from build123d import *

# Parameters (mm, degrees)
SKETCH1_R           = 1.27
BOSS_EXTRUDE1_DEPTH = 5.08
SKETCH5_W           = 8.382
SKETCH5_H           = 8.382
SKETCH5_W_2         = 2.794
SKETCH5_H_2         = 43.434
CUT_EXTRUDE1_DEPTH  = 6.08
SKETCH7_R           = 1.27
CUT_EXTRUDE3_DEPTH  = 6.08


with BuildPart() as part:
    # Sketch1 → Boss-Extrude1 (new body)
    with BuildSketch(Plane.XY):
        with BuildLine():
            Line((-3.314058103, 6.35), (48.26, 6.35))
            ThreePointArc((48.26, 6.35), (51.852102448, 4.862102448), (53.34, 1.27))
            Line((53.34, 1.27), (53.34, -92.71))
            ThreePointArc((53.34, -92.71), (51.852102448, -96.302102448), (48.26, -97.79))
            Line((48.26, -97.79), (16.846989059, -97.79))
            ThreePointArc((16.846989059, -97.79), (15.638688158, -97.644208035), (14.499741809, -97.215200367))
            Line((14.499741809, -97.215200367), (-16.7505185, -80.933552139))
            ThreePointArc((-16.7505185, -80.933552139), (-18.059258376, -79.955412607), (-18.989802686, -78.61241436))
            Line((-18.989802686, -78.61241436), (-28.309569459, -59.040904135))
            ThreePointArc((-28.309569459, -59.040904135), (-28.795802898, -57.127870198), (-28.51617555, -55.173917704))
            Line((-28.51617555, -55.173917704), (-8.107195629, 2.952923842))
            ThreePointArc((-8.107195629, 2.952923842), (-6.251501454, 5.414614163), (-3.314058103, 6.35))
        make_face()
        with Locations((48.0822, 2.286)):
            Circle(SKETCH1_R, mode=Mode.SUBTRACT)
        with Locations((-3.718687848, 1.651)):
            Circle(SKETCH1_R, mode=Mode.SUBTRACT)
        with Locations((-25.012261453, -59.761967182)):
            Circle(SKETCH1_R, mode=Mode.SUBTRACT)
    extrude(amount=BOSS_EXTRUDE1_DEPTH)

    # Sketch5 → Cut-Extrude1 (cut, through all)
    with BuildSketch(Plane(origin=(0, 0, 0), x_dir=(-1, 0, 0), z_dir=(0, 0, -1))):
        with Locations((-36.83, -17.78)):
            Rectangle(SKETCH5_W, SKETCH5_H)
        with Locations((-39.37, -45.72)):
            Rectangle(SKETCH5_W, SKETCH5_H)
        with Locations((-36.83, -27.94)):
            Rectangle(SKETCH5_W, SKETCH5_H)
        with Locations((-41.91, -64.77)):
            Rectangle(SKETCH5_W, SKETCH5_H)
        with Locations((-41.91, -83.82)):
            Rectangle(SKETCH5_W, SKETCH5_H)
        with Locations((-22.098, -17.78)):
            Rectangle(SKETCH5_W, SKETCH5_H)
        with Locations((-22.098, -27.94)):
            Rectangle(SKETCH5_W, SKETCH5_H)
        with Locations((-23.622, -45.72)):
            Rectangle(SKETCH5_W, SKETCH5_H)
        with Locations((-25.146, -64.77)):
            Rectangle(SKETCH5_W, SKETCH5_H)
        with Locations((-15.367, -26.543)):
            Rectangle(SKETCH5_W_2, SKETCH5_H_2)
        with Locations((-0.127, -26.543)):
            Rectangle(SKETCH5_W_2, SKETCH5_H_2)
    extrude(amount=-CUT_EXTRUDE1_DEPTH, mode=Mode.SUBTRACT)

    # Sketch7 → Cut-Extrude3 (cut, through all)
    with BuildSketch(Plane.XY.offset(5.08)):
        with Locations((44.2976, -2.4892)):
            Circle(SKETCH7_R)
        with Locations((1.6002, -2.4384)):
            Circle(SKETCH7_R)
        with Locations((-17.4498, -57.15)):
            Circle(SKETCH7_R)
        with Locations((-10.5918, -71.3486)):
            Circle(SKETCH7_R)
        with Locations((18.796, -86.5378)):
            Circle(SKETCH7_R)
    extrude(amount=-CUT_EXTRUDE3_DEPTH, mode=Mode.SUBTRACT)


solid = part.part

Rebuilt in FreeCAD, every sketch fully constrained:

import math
import FreeCAD as App
import Part
import Sketcher

V = App.Vector
Q = App.Units.Quantity

doc = App.newDocument("Part")
body = doc.addObject("PartDesign::Body", "Body")

sketch1 = body.newObject("Sketcher::SketchObject", "Sketch")
sketch1.AttachmentSupport = (doc.getObject("XY_Plane"), [""])
sketch1.MapMode = "FlatFace"
sketch1.addGeometry([
    Part.LineSegment(V(48.3, 6.3, 0), V(-3.3, 6.3, 0)),
    Part.ArcOfCircle(Part.Circle(V(-3.3, 1.3, 0), V(0, 0, 1), 5.1), math.radians(90), math.radians(161)),
    Part.LineSegment(V(-8.1, 3, 0), V(-28.5, -55.2, 0)),
    Part.ArcOfCircle(Part.Circle(V(-23.7, -56.9, 0), V(0, 0, 1), 5.1), math.radians(161), math.radians(205)),
    Part.LineSegment(V(-28.3, -59, 0), V(-19, -78.6, 0)),
    Part.ArcOfCircle(Part.Circle(V(-14.4, -76.4, 0), V(0, 0, 1), 5.1), math.radians(-155), math.radians(-118)),
    Part.LineSegment(V(-16.8, -80.9, 0), V(14.5, -97.2, 0)),
    Part.ArcOfCircle(Part.Circle(V(16.8, -92.7, 0), V(0, 0, 1), 5.1), math.radians(-118), math.radians(-90)),
    Part.LineSegment(V(16.8, -97.8, 0), V(48.3, -97.8, 0)),
    Part.ArcOfCircle(Part.Circle(V(48.3, -92.7, 0), V(0, 0, 1), 5.1), math.radians(-90), math.radians(0)),
    Part.LineSegment(V(53.3, -92.7, 0), V(53.3, 1.3, 0)),
    Part.ArcOfCircle(Part.Circle(V(48.3, 1.3, 0), V(0, 0, 1), 5.1), math.radians(0), math.radians(90)),
    Part.Circle(V(-25, -59.8, 0), V(0, 0, 1), 1.3),
    Part.Circle(V(48.1, 2.3, 0), V(0, 0, 1), 1.3),
    Part.Circle(V(-3.7, 1.7, 0), V(0, 0, 1), 1.3),
], False)
sketch1.addConstraint([
    Sketcher.Constraint("Tangent", 0, 2, 1, 1),
    Sketcher.Constraint("Tangent", 1, 2, 2, 1),
    Sketcher.Constraint("Tangent", 2, 2, 3, 1),
    Sketcher.Constraint("Tangent", 3, 2, 4, 1),
    Sketcher.Constraint("Tangent", 4, 2, 5, 1),
    Sketcher.Constraint("Tangent", 5, 2, 6, 1),
    Sketcher.Constraint("Tangent", 6, 2, 7, 1),
    Sketcher.Constraint("Tangent", 7, 2, 8, 1),
    Sketcher.Constraint("Tangent", 8, 2, 9, 1),
    Sketcher.Constraint("Tangent", 9, 2, 10, 1),
    Sketcher.Constraint("Tangent", 10, 2, 11, 1),
    Sketcher.Constraint("Tangent", 11, 2, 0, 1),
    Sketcher.Constraint("Horizontal", 0),
    Sketcher.Constraint("Horizontal", 8),
    Sketcher.Constraint("Vertical", 10),
    Sketcher.Constraint("Equal", 1, 3),
    Sketcher.Constraint("Equal", 3, 5),
    Sketcher.Constraint("Equal", 5, 7),
    Sketcher.Constraint("Equal", 7, 9),
    Sketcher.Constraint("Equal", 9, 11),
    Sketcher.Constraint("Equal", 12, 13),
    Sketcher.Constraint("Equal", 13, 14),
    Sketcher.Constraint("Diameter", 12, Q("0.1 in")),
    Sketcher.Constraint("Radius", 1, Q("0.2 in")),
    Sketcher.Constraint("DistanceY", 10, 1, 10, 2, Q("3.7 in")),
    Sketcher.Constraint("DistanceX", -1, 1, 9, 3, Q("1.9 in")),
    Sketcher.Constraint("DistanceY", -1, 1, 1, 3, Q("0.05 in")),
    Sketcher.Constraint("DistanceY", -1, 1, 13, 3, Q("0.09 in")),
    Sketcher.Constraint("DistanceX", -1, 1, 13, 3, Q("1.893 in")),
    Sketcher.Constraint("DistanceY", -1, 1, 14, 3, Q("0.065 in")),
    Sketcher.Constraint("DistanceX", 0, 2, 0, 1, Q("51.574058 mm")),
    Sketcher.Constraint("DistanceX", 8, 1, 8, 2, Q("31.413011 mm")),
    Sketcher.Constraint("DistanceY", 6, 2, -1, 1, Q("97.2152 mm")),
    Sketcher.Constraint("DistanceX", 3, 2, 5, 3, Q("13.906298 mm")),
    Sketcher.Constraint("Distance", 2, Q("61.60565 mm")),
    Sketcher.Constraint("Distance", 6, Q("35.23735 mm")),
    Sketcher.Constraint("DistanceX", 12, 3, -1, 1, Q("25.012261 mm")),
    Sketcher.Constraint("DistanceX", 14, 3, 1, 3, Q("0.40463 mm")),
    Sketcher.Constraint("DistanceY", 12, 3, 2, 2, Q("4.588049 mm")),
])
pad1 = body.newObject("PartDesign::Pad", "Pad")
pad1.Profile = sketch1
pad1.Length = Q("0.2 in")

sketch2 = body.newObject("Sketcher::SketchObject", "Sketch001")
sketch2.AttachmentSupport = (doc.getObject("XY_Plane"), [""])
sketch2.MapMode = "FlatFace"
sketch2.addGeometry([
    Part.LineSegment(V(41, -13.6, 0), V(41, -22, 0)),
    Part.LineSegment(V(41, -22, 0), V(32.6, -22, 0)),
    Part.LineSegment(V(32.6, -22, 0), V(32.6, -13.6, 0)),
    Part.LineSegment(V(32.6, -13.6, 0), V(41, -13.6, 0)),
    Part.LineSegment(V(43.6, -41.5, 0), V(43.6, -49.9, 0)),
    Part.LineSegment(V(43.6, -49.9, 0), V(35.2, -49.9, 0)),
    Part.LineSegment(V(35.2, -49.9, 0), V(35.2, -41.5, 0)),
    Part.LineSegment(V(35.2, -41.5, 0), V(43.6, -41.5, 0)),
    Part.LineSegment(V(41, -23.7, 0), V(41, -32.1, 0)),
    Part.LineSegment(V(41, -32.1, 0), V(32.6, -32.1, 0)),
    Part.LineSegment(V(32.6, -32.1, 0), V(32.6, -23.7, 0)),
    Part.LineSegment(V(32.6, -23.7, 0), V(41, -23.7, 0)),
    Part.LineSegment(V(46.1, -60.6, 0), V(46.1, -69, 0)),
    Part.LineSegment(V(46.1, -69, 0), V(37.7, -69, 0)),
    Part.LineSegment(V(37.7, -69, 0), V(37.7, -60.6, 0)),
    Part.LineSegment(V(37.7, -60.6, 0), V(46.1, -60.6, 0)),
    Part.LineSegment(V(46.1, -79.6, 0), V(46.1, -88, 0)),
    Part.LineSegment(V(46.1, -88, 0), V(37.7, -88, 0)),
    Part.LineSegment(V(37.7, -88, 0), V(37.7, -79.6, 0)),
    Part.LineSegment(V(37.7, -79.6, 0), V(46.1, -79.6, 0)),
    Part.LineSegment(V(26.3, -13.6, 0), V(26.3, -22, 0)),
    Part.LineSegment(V(26.3, -22, 0), V(17.9, -22, 0)),
    Part.LineSegment(V(17.9, -22, 0), V(17.9, -13.6, 0)),
    Part.LineSegment(V(17.9, -13.6, 0), V(26.3, -13.6, 0)),
    Part.LineSegment(V(26.3, -23.7, 0), V(26.3, -32.1, 0)),
    Part.LineSegment(V(26.3, -32.1, 0), V(17.9, -32.1, 0)),
    Part.LineSegment(V(17.9, -32.1, 0), V(17.9, -23.7, 0)),
    Part.LineSegment(V(17.9, -23.7, 0), V(26.3, -23.7, 0)),
    Part.LineSegment(V(27.8, -41.5, 0), V(27.8, -49.9, 0)),
    Part.LineSegment(V(27.8, -49.9, 0), V(19.4, -49.9, 0)),
    Part.LineSegment(V(19.4, -49.9, 0), V(19.4, -41.5, 0)),
    Part.LineSegment(V(19.4, -41.5, 0), V(27.8, -41.5, 0)),
    Part.LineSegment(V(29.3, -60.6, 0), V(29.3, -69, 0)),
    Part.LineSegment(V(29.3, -69, 0), V(21, -69, 0)),
    Part.LineSegment(V(21, -69, 0), V(21, -60.6, 0)),
    Part.LineSegment(V(21, -60.6, 0), V(29.3, -60.6, 0)),
    Part.LineSegment(V(16.8, -4.8, 0), V(16.8, -48.3, 0)),
    Part.LineSegment(V(16.8, -48.3, 0), V(14, -48.3, 0)),
    Part.LineSegment(V(14, -48.3, 0), V(14, -4.8, 0)),
    Part.LineSegment(V(14, -4.8, 0), V(16.8, -4.8, 0)),
    Part.LineSegment(V(1.5, -4.8, 0), V(1.5, -48.3, 0)),
    Part.LineSegment(V(1.5, -48.3, 0), V(-1.3, -48.3, 0)),
    Part.LineSegment(V(-1.3, -48.3, 0), V(-1.3, -4.8, 0)),
    Part.LineSegment(V(-1.3, -4.8, 0), V(1.5, -4.8, 0)),
], False)
sketch2.addConstraint([
    Sketcher.Constraint("Coincident", 0, 2, 1, 1),
    Sketcher.Constraint("Coincident", 1, 2, 2, 1),
    Sketcher.Constraint("Coincident", 2, 2, 3, 1),
    Sketcher.Constraint("Coincident", 3, 2, 0, 1),
    Sketcher.Constraint("Coincident", 4, 2, 5, 1),
    Sketcher.Constraint("Coincident", 5, 2, 6, 1),
    Sketcher.Constraint("Coincident", 6, 2, 7, 1),
    Sketcher.Constraint("Coincident", 7, 2, 4, 1),
    Sketcher.Constraint("Coincident", 8, 2, 9, 1),
    Sketcher.Constraint("Coincident", 9, 2, 10, 1),
    Sketcher.Constraint("Coincident", 10, 2, 11, 1),
    Sketcher.Constraint("Coincident", 11, 2, 8, 1),
    Sketcher.Constraint("Coincident", 12, 2, 13, 1),
    Sketcher.Constraint("Coincident", 13, 2, 14, 1),
    Sketcher.Constraint("Coincident", 14, 2, 15, 1),
    Sketcher.Constraint("Coincident", 15, 2, 12, 1),
    Sketcher.Constraint("Coincident", 16, 2, 17, 1),
    Sketcher.Constraint("Coincident", 17, 2, 18, 1),
    Sketcher.Constraint("Coincident", 18, 2, 19, 1),
    Sketcher.Constraint("Coincident", 19, 2, 16, 1),
    Sketcher.Constraint("Coincident", 20, 2, 21, 1),
    Sketcher.Constraint("Coincident", 21, 2, 22, 1),
    Sketcher.Constraint("Coincident", 22, 2, 23, 1),
    Sketcher.Constraint("Coincident", 23, 2, 20, 1),
    Sketcher.Constraint("Coincident", 24, 2, 25, 1),
    Sketcher.Constraint("Coincident", 25, 2, 26, 1),
    Sketcher.Constraint("Coincident", 26, 2, 27, 1),
    Sketcher.Constraint("Coincident", 27, 2, 24, 1),
    Sketcher.Constraint("Coincident", 28, 2, 29, 1),
    Sketcher.Constraint("Coincident", 29, 2, 30, 1),
    Sketcher.Constraint("Coincident", 30, 2, 31, 1),
    Sketcher.Constraint("Coincident", 31, 2, 28, 1),
    Sketcher.Constraint("Coincident", 32, 2, 33, 1),
    Sketcher.Constraint("Coincident", 33, 2, 34, 1),
    Sketcher.Constraint("Coincident", 34, 2, 35, 1),
    Sketcher.Constraint("Coincident", 35, 2, 32, 1),
    Sketcher.Constraint("Coincident", 36, 2, 37, 1),
    Sketcher.Constraint("Coincident", 37, 2, 38, 1),
    Sketcher.Constraint("Coincident", 38, 2, 39, 1),
    Sketcher.Constraint("Coincident", 39, 2, 36, 1),
    Sketcher.Constraint("Coincident", 40, 2, 41, 1),
    Sketcher.Constraint("Coincident", 41, 2, 42, 1),
    Sketcher.Constraint("Coincident", 42, 2, 43, 1),
    Sketcher.Constraint("Coincident", 43, 2, 40, 1),
    Sketcher.Constraint("Vertical", 0),
    Sketcher.Constraint("Horizontal", 1),
    Sketcher.Constraint("Vertical", 2),
    Sketcher.Constraint("Horizontal", 3),
    Sketcher.Constraint("Vertical", 4),
    Sketcher.Constraint("Horizontal", 5),
    Sketcher.Constraint("Vertical", 6),
    Sketcher.Constraint("Horizontal", 7),
    Sketcher.Constraint("Vertical", 8),
    Sketcher.Constraint("Horizontal", 9),
    Sketcher.Constraint("Vertical", 10),
    Sketcher.Constraint("Horizontal", 11),
    Sketcher.Constraint("Vertical", 12),
    Sketcher.Constraint("Horizontal", 13),
    Sketcher.Constraint("Vertical", 14),
    Sketcher.Constraint("Horizontal", 15),
    Sketcher.Constraint("Vertical", 16),
    Sketcher.Constraint("Horizontal", 17),
    Sketcher.Constraint("Vertical", 18),
    Sketcher.Constraint("Horizontal", 19),
    Sketcher.Constraint("Vertical", 20),
    Sketcher.Constraint("Horizontal", 21),
    Sketcher.Constraint("Vertical", 22),
    Sketcher.Constraint("Horizontal", 23),
    Sketcher.Constraint("Vertical", 24),
    Sketcher.Constraint("Horizontal", 25),
    Sketcher.Constraint("Vertical", 26),
    Sketcher.Constraint("Horizontal", 27),
    Sketcher.Constraint("Vertical", 28),
    Sketcher.Constraint("Horizontal", 29),
    Sketcher.Constraint("Vertical", 30),
    Sketcher.Constraint("Horizontal", 31),
    Sketcher.Constraint("Vertical", 32),
    Sketcher.Constraint("Horizontal", 33),
    Sketcher.Constraint("Vertical", 34),
    Sketcher.Constraint("Horizontal", 35),
    Sketcher.Constraint("Vertical", 36),
    Sketcher.Constraint("Horizontal", 37),
    Sketcher.Constraint("Vertical", 38),
    Sketcher.Constraint("Horizontal", 39),
    Sketcher.Constraint("Vertical", 40),
    Sketcher.Constraint("Horizontal", 41),
    Sketcher.Constraint("Vertical", 42),
    Sketcher.Constraint("Horizontal", 43),
    Sketcher.Constraint("Horizontal", 1, 2, 20, 2),
    Sketcher.Constraint("Horizontal", 3, 2, 22, 2),
    Sketcher.Constraint("Horizontal", 9, 2, 24, 2),
    Sketcher.Constraint("Horizontal", 11, 2, 26, 2),
    Sketcher.Constraint("Horizontal", 5, 2, 28, 2),
    Sketcher.Constraint("Horizontal", 7, 2, 30, 2),
    Sketcher.Constraint("Horizontal", 13, 2, 32, 2),
    Sketcher.Constraint("Horizontal", 15, 2, 34, 2),
    Sketcher.Constraint("Horizontal", 37, 2, 40, 2),
    Sketcher.Constraint("Horizontal", 39, 2, 42, 2),
    Sketcher.Constraint("Vertical", 3, 2, 8, 2),
    Sketcher.Constraint("Vertical", 2, 2, 9, 2),
    Sketcher.Constraint("Vertical", 15, 2, 16, 2),
    Sketcher.Constraint("Vertical", 14, 2, 17, 2),
    Sketcher.Constraint("Vertical", 23, 2, 24, 2),
    Sketcher.Constraint("Vertical", 22, 2, 25, 2),
    Sketcher.Constraint("Equal", 3, 5),
    Sketcher.Constraint("Equal", 11, 13),
    Sketcher.Constraint("Equal", 19, 21),
    Sketcher.Constraint("Equal", 27, 29),
    Sketcher.Constraint("Equal", 31, 33),
    Sketcher.Constraint("Equal", 39, 41),
    Sketcher.Constraint("Equal", 35, 0),
    Sketcher.Constraint("Equal", 2, 4),
    Sketcher.Constraint("Equal", 6, 8),
    Sketcher.Constraint("Equal", 10, 12),
    Sketcher.Constraint("Equal", 14, 16),
    Sketcher.Constraint("DistanceX", 1, 2, 1, 1, Q("0.33 in")),
    Sketcher.Constraint("DistanceX", 37, 2, 37, 1, Q("0.11 in")),
    Sketcher.Constraint("DistanceY", 36, 2, 36, 1, Q("1.71 in")),
    Sketcher.Constraint("DistanceY", 36, 2, -1, 1, Q("1.9 in")),
    Sketcher.Constraint("DistanceX", 0, 2, 4, 2, Q("0.1 in")),
    Sketcher.Constraint("DistanceY", 4, 2, 0, 2, Q("1.1 in")),
    Sketcher.Constraint("DistanceY", 8, 2, 0, 2, Q("0.4 in")),
    Sketcher.Constraint("DistanceX", 4, 2, 12, 2, Q("0.1 in")),
    Sketcher.Constraint("DistanceY", 16, 2, 4, 2, Q("1.5 in")),
    Sketcher.Constraint("DistanceX", 40, 2, 36, 2, Q("0.6 in")),
    Sketcher.Constraint("DistanceX", -1, 1, 36, 2, Q("0.66 in")),
    Sketcher.Constraint("DistanceY", 12, 2, 4, 2, Q("0.75 in")),
    Sketcher.Constraint("DistanceX", 20, 2, 1, 2, Q("0.25 in")),
    Sketcher.Constraint("DistanceX", 28, 2, 5, 2, Q("0.29 in")),
    Sketcher.Constraint("DistanceX", 32, 2, 13, 2, Q("0.33 in")),
    Sketcher.Constraint("DistanceX", -1, 1, 0, 2, Q("1.615 in")),
    Sketcher.Constraint("DistanceY", 0, 2, -1, 1, Q("0.865 in")),
])
pocket1 = body.newObject("PartDesign::Pocket", "Pocket")
pocket1.Profile = sketch2
pocket1.Type = "ThroughAll"
pocket1.Reversed = True

sketch3 = body.newObject("Sketcher::SketchObject", "Sketch002")
sketch3.AttachmentSupport = (doc.getObject("XY_Plane"), [""])
sketch3.MapMode = "FlatFace"
sketch3.AttachmentOffset = App.Placement(V(0, 0, 0.2 * 25.4), App.Rotation())
sketch3.addGeometry([
    Part.Circle(V(44.3, -2.5, 0), V(0, 0, 1), 1.3),
    Part.Circle(V(1.6, -2.4, 0), V(0, 0, 1), 1.3),
    Part.Circle(V(-17.4, -57.1, 0), V(0, 0, 1), 1.3),
    Part.Circle(V(-10.6, -71.3, 0), V(0, 0, 1), 1.3),
    Part.Circle(V(18.8, -86.5, 0), V(0, 0, 1), 1.3),
], False)
sketch3.addConstraint([
    Sketcher.Constraint("Equal", 0, 1),
    Sketcher.Constraint("Equal", 1, 2),
    Sketcher.Constraint("Equal", 2, 3),
    Sketcher.Constraint("Equal", 3, 4),
    Sketcher.Constraint("Diameter", 0, Q("0.1 in")),
    Sketcher.Constraint("DistanceY", 2, 3, -1, 1, Q("2.25 in")),
    Sketcher.Constraint("DistanceX", -1, 1, 4, 3, Q("0.74 in")),
    Sketcher.Constraint("DistanceX", 2, 3, 1, 3, Q("0.75 in")),
    Sketcher.Constraint("DistanceX", 2, 3, 3, 3, Q("0.27 in")),
    Sketcher.Constraint("DistanceX", -1, 1, 0, 3, Q("1.744 in")),
    Sketcher.Constraint("DistanceY", 0, 3, -1, 1, Q("0.098 in")),
    Sketcher.Constraint("DistanceX", -1, 1, 1, 3, Q("0.063 in")),
    Sketcher.Constraint("DistanceY", 1, 3, -1, 1, Q("0.096 in")),
    Sketcher.Constraint("DistanceY", 3, 3, -1, 1, Q("2.809 in")),
    Sketcher.Constraint("DistanceY", 4, 3, -1, 1, Q("3.407 in")),
])
pocket2 = body.newObject("PartDesign::Pocket", "Pocket001")
pocket2.Profile = sketch3
pocket2.Type = "ThroughAll"

doc.recompute()
